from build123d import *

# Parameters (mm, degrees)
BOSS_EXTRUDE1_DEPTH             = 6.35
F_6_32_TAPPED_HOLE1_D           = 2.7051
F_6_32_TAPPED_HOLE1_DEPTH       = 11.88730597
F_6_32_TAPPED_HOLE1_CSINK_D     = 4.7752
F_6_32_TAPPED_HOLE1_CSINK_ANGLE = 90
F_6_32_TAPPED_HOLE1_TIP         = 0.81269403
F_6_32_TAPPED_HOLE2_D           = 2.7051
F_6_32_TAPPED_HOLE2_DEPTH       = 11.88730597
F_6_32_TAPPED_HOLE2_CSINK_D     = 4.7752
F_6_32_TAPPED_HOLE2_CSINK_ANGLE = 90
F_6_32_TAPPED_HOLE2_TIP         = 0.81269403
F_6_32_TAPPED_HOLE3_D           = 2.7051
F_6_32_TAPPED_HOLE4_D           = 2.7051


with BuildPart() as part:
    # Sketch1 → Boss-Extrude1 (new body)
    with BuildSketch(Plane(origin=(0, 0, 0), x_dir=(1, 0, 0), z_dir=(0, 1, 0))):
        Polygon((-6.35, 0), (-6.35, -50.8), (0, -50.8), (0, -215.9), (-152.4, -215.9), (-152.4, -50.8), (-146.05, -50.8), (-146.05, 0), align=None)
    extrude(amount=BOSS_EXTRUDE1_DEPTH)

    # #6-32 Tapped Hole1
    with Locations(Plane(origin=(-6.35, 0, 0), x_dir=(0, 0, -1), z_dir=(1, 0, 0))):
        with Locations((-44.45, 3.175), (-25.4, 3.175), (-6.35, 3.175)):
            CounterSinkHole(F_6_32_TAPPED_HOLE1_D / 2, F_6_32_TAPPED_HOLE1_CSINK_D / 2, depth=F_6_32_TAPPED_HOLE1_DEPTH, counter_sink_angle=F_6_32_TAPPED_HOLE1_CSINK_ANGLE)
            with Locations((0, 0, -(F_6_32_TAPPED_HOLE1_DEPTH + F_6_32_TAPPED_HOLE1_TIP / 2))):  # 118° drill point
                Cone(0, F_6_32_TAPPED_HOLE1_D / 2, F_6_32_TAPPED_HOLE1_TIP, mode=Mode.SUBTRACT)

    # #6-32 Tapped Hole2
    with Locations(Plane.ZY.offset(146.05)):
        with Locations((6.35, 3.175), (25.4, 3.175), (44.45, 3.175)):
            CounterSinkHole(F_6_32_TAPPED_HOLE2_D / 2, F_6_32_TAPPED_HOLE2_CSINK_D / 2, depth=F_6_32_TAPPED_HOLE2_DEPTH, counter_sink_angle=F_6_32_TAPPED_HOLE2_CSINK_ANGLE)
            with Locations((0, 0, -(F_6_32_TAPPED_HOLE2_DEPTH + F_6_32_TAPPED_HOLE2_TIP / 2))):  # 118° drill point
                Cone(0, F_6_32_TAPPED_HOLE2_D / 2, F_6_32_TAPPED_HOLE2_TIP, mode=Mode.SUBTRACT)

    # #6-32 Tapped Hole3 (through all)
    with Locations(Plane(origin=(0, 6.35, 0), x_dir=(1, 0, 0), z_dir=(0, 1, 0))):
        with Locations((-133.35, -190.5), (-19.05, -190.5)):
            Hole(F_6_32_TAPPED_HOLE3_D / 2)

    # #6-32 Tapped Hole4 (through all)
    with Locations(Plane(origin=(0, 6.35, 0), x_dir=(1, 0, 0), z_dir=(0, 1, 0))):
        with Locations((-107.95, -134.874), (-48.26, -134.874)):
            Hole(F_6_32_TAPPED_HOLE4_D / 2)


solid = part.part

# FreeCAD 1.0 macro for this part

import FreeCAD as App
import Part
import Sketcher

V = App.Vector
Q = App.Units.Quantity


def add_polygon(sketch, points):
    """Adds a closed chain of lines whose ends are joined by coincident constraints."""
    first, n = sketch.GeometryCount, len(points)
    for a, b in zip(points, points[1:] + points[:1]):
        sketch.addGeometry(Part.LineSegment(App.Vector(*a, 0), App.Vector(*b, 0)), False)
    for i in range(n):
        sketch.addConstraint(Sketcher.Constraint("Coincident", first + i, 2, first + (i + 1) % n, 1))

doc = App.newDocument("Part")
body = doc.addObject("PartDesign::Body", "Body")

# Sketch on XZ plane
sketch1 = body.newObject("Sketcher::SketchObject", "Sketch")
sketch1.AttachmentSupport = (doc.getObject("XZ_Plane"), [""])
sketch1.MapMode = "FlatFace"
add_polygon(sketch1, [(-6, 51), (-6, 0), (-146, 0), (-146, 51), (-152, 51), (-152, 216), (0, 216), (0, 51)])  # lines 0-7
sketch1.addConstraint(Sketcher.Constraint("Vertical", 0))
sketch1.addConstraint(Sketcher.Constraint("Horizontal", 1))
sketch1.addConstraint(Sketcher.Constraint("Vertical", 2))
sketch1.addConstraint(Sketcher.Constraint("Horizontal", 3))
sketch1.addConstraint(Sketcher.Constraint("Vertical", 4))
sketch1.addConstraint(Sketcher.Constraint("Horizontal", 5))
sketch1.addConstraint(Sketcher.Constraint("Vertical", 6))
sketch1.addConstraint(Sketcher.Constraint("Horizontal", 7))
sketch1.addConstraint(Sketcher.Constraint("PointOnObject", 0, 2, -1))
sketch1.addConstraint(Sketcher.Constraint("PointOnObject", 5, 2, -2))
sketch1.addConstraint(Sketcher.Constraint("Horizontal", 3, 2, 6, 2))
sketch1.addConstraint(Sketcher.Constraint("Equal", 3, 7))
sketch1.addConstraint(Sketcher.Constraint("DistanceX", 5, 1, 5, 2, Q("6 in")))
sketch1.addConstraint(Sketcher.Constraint("DistanceY", 0, 2, 0, 1, Q("2 in")))
sketch1.addConstraint(Sketcher.Constraint("DistanceX", 1, 2, 1, 1, Q("5.5 in")))
sketch1.addConstraint(Sketcher.Constraint("DistanceY", 4, 1, 4, 2, Q("6.5 in")))
pad1 = body.newObject("PartDesign::Pad", "Pad")
pad1.Profile = sketch1
pad1.Length = Q("0.25 in")
pad1.Reversed = True

# Sketch on YZ plane
sketch2 = body.newObject("Sketcher::SketchObject", "Sketch001")
sketch2.AttachmentSupport = (doc.getObject("YZ_Plane"), [""])
sketch2.MapMode = "FlatFace"
sketch2.AttachmentOffset = App.Placement(V(0, 0, -0.25 * 25.4), App.Rotation())
sketch2.addGeometry(Part.Circle(V(3.2, 44.5, 0), V(0, 0, 1), 1.4), False)
sketch2.addGeometry(Part.Circle(V(3.2, 25.4, 0), V(0, 0, 1), 1.4), False)
sketch2.addGeometry(Part.Circle(V(3.2, 6.3, 0), V(0, 0, 1), 1.4), False)
sketch2.addConstraint(Sketcher.Constraint("Equal", 0, 1))
sketch2.addConstraint(Sketcher.Constraint("Equal", 1, 2))
sketch2.addConstraint(Sketcher.Constraint("Vertical", 0, 3, 1, 3))
sketch2.addConstraint(Sketcher.Constraint("Vertical", 1, 3, 2, 3))
sketch2.addConstraint(Sketcher.Constraint("DistanceY", -1, 1, 1, 3, Q("1 in")))
sketch2.addConstraint(Sketcher.Constraint("Diameter", 0, Q("0.1065 in")))
sketch2.addConstraint(Sketcher.Constraint("DistanceY", 2, 3, 0, 3, Q("1.5 in")))
sketch2.addConstraint(Sketcher.Constraint("DistanceY", -1, 1, 0, 3, Q("1.75 in")))
sketch2.addConstraint(Sketcher.Constraint("DistanceX", -1, 1, 0, 3, Q("0.125 in")))
doc.recompute()
hole = body.newObject("PartDesign::Hole", "Hole")
hole.Profile = sketch2
hole.ThreadType = "None"
hole.Diameter = Q("0.1065 in")
hole.DepthType = "Dimension"
hole.Depth = 11.887306
hole.DrillPoint = "Angled"
hole.DrillPointAngle = 118
hole.HoleCutType = "Countersink"
hole.HoleCutDiameter = Q("0.188 in")
hole.HoleCutCountersinkAngle = 90

# Sketch on YZ plane
sketch3 = body.newObject("Sketcher::SketchObject", "Sketch002")
sketch3.AttachmentSupport = (doc.getObject("YZ_Plane"), [""])
sketch3.MapMode = "FlatFace"
sketch3.AttachmentOffset = App.Placement(V(0, 0, -5.75 * 25.4), App.Rotation())
sketch3.addGeometry(Part.Circle(V(3.2, 6.3, 0), V(0, 0, 1), 1.4), False)
sketch3.addGeometry(Part.Circle(V(3.2, 25.4, 0), V(0, 0, 1), 1.4), False)
sketch3.addGeometry(Part.Circle(V(3.2, 44.5, 0), V(0, 0, 1), 1.4), False)
sketch3.addConstraint(Sketcher.Constraint("Equal", 0, 1))
sketch3.addConstraint(Sketcher.Constraint("Equal", 1, 2))
sketch3.addConstraint(Sketcher.Constraint("Vertical", 0, 3, 1, 3))
sketch3.addConstraint(Sketcher.Constraint("Vertical", 1, 3, 2, 3))
sketch3.addConstraint(Sketcher.Constraint("DistanceY", -1, 1, 1, 3, Q("1 in")))
sketch3.addConstraint(Sketcher.Constraint("Diameter", 0, Q("0.1065 in")))
sketch3.addConstraint(Sketcher.Constraint("DistanceY", 0, 3, 2, 3, Q("1.5 in")))
sketch3.addConstraint(Sketcher.Constraint("DistanceY", -1, 1, 0, 3, Q("0.25 in")))
sketch3.addConstraint(Sketcher.Constraint("DistanceX", -1, 1, 0, 3, Q("0.125 in")))
doc.recompute()
hole2 = body.newObject("PartDesign::Hole", "Hole001")
hole2.Profile = sketch3
hole2.ThreadType = "None"
hole2.Diameter = Q("0.1065 in")
hole2.DepthType = "Dimension"
hole2.Depth = 11.887306
hole2.DrillPoint = "Angled"
hole2.DrillPointAngle = 118
hole2.HoleCutType = "Countersink"
hole2.HoleCutDiameter = Q("0.188 in")
hole2.HoleCutCountersinkAngle = 90
hole2.Reversed = True

# Sketch on XZ plane
sketch4 = body.newObject("Sketcher::SketchObject", "Sketch003")
sketch4.AttachmentSupport = (doc.getObject("XZ_Plane"), [""])
sketch4.MapMode = "FlatFace"
sketch4.AttachmentOffset = App.Placement(V(0, 0, -0.25 * 25.4), App.Rotation())
sketch4.addGeometry(Part.Circle(V(-133.3, 190.5, 0), V(0, 0, 1), 1.4), False)
sketch4.addGeometry(Part.Circle(V(-19.1, 190.5, 0), V(0, 0, 1), 1.4), False)
sketch4.addConstraint(Sketcher.Constraint("Equal", 0, 1))
sketch4.addConstraint(Sketcher.Constraint("Horizontal", 0, 3, 1, 3))
sketch4.addConstraint(Sketcher.Constraint("Diameter", 0, Q("0.1065 in")))
sketch4.addConstraint(Sketcher.Constraint("DistanceY", -1, 1, 0, 3, Q("7.5 in")))
sketch4.addConstraint(Sketcher.Constraint("DistanceX", 0, 3, 1, 3, Q("4.5 in")))
sketch4.addConstraint(Sketcher.Constraint("DistanceX", 0, 3, -1, 1, Q("5.25 in")))
doc.recompute()
hole3 = body.newObject("PartDesign::Hole", "Hole002")
hole3.Profile = sketch4
hole3.ThreadType = "None"
hole3.Diameter = Q("0.1065 in")
hole3.DepthType = "ThroughAll"
hole3.Reversed = True

# Sketch on XZ plane
sketch5 = body.newObject("Sketcher::SketchObject", "Sketch004")
sketch5.AttachmentSupport = (doc.getObject("XZ_Plane"), [""])
sketch5.MapMode = "FlatFace"
sketch5.AttachmentOffset = App.Placement(V(0, 0, -0.25 * 25.4), App.Rotation())
sketch5.addGeometry(Part.Circle(V(-108, 134.9, 0), V(0, 0, 1), 1.4), False)
sketch5.addGeometry(Part.Circle(V(-48.3, 134.9, 0), V(0, 0, 1), 1.4), False)
sketch5.addConstraint(Sketcher.Constraint("Equal", 0, 1))
sketch5.addConstraint(Sketcher.Constraint("Horizontal", 0, 3, 1, 3))
sketch5.addConstraint(Sketcher.Constraint("Diameter", 0, Q("0.1065 in")))
sketch5.addConstraint(Sketcher.Constraint("DistanceX", 1, 3, -1, 1, Q("1.9 in")))
sketch5.addConstraint(Sketcher.Constraint("DistanceX", 0, 3, -1, 1, Q("4.25 in")))
sketch5.addConstraint(Sketcher.Constraint("DistanceY", -1, 1, 0, 3, Q("5.31 in")))
doc.recompute()
hole4 = body.newObject("PartDesign::Hole", "Hole003")
hole4.Profile = sketch5
hole4.ThreadType = "None"
hole4.Diameter = Q("0.1065 in")
hole4.DepthType = "ThroughAll"
hole4.Reversed = True

doc.recompute()
